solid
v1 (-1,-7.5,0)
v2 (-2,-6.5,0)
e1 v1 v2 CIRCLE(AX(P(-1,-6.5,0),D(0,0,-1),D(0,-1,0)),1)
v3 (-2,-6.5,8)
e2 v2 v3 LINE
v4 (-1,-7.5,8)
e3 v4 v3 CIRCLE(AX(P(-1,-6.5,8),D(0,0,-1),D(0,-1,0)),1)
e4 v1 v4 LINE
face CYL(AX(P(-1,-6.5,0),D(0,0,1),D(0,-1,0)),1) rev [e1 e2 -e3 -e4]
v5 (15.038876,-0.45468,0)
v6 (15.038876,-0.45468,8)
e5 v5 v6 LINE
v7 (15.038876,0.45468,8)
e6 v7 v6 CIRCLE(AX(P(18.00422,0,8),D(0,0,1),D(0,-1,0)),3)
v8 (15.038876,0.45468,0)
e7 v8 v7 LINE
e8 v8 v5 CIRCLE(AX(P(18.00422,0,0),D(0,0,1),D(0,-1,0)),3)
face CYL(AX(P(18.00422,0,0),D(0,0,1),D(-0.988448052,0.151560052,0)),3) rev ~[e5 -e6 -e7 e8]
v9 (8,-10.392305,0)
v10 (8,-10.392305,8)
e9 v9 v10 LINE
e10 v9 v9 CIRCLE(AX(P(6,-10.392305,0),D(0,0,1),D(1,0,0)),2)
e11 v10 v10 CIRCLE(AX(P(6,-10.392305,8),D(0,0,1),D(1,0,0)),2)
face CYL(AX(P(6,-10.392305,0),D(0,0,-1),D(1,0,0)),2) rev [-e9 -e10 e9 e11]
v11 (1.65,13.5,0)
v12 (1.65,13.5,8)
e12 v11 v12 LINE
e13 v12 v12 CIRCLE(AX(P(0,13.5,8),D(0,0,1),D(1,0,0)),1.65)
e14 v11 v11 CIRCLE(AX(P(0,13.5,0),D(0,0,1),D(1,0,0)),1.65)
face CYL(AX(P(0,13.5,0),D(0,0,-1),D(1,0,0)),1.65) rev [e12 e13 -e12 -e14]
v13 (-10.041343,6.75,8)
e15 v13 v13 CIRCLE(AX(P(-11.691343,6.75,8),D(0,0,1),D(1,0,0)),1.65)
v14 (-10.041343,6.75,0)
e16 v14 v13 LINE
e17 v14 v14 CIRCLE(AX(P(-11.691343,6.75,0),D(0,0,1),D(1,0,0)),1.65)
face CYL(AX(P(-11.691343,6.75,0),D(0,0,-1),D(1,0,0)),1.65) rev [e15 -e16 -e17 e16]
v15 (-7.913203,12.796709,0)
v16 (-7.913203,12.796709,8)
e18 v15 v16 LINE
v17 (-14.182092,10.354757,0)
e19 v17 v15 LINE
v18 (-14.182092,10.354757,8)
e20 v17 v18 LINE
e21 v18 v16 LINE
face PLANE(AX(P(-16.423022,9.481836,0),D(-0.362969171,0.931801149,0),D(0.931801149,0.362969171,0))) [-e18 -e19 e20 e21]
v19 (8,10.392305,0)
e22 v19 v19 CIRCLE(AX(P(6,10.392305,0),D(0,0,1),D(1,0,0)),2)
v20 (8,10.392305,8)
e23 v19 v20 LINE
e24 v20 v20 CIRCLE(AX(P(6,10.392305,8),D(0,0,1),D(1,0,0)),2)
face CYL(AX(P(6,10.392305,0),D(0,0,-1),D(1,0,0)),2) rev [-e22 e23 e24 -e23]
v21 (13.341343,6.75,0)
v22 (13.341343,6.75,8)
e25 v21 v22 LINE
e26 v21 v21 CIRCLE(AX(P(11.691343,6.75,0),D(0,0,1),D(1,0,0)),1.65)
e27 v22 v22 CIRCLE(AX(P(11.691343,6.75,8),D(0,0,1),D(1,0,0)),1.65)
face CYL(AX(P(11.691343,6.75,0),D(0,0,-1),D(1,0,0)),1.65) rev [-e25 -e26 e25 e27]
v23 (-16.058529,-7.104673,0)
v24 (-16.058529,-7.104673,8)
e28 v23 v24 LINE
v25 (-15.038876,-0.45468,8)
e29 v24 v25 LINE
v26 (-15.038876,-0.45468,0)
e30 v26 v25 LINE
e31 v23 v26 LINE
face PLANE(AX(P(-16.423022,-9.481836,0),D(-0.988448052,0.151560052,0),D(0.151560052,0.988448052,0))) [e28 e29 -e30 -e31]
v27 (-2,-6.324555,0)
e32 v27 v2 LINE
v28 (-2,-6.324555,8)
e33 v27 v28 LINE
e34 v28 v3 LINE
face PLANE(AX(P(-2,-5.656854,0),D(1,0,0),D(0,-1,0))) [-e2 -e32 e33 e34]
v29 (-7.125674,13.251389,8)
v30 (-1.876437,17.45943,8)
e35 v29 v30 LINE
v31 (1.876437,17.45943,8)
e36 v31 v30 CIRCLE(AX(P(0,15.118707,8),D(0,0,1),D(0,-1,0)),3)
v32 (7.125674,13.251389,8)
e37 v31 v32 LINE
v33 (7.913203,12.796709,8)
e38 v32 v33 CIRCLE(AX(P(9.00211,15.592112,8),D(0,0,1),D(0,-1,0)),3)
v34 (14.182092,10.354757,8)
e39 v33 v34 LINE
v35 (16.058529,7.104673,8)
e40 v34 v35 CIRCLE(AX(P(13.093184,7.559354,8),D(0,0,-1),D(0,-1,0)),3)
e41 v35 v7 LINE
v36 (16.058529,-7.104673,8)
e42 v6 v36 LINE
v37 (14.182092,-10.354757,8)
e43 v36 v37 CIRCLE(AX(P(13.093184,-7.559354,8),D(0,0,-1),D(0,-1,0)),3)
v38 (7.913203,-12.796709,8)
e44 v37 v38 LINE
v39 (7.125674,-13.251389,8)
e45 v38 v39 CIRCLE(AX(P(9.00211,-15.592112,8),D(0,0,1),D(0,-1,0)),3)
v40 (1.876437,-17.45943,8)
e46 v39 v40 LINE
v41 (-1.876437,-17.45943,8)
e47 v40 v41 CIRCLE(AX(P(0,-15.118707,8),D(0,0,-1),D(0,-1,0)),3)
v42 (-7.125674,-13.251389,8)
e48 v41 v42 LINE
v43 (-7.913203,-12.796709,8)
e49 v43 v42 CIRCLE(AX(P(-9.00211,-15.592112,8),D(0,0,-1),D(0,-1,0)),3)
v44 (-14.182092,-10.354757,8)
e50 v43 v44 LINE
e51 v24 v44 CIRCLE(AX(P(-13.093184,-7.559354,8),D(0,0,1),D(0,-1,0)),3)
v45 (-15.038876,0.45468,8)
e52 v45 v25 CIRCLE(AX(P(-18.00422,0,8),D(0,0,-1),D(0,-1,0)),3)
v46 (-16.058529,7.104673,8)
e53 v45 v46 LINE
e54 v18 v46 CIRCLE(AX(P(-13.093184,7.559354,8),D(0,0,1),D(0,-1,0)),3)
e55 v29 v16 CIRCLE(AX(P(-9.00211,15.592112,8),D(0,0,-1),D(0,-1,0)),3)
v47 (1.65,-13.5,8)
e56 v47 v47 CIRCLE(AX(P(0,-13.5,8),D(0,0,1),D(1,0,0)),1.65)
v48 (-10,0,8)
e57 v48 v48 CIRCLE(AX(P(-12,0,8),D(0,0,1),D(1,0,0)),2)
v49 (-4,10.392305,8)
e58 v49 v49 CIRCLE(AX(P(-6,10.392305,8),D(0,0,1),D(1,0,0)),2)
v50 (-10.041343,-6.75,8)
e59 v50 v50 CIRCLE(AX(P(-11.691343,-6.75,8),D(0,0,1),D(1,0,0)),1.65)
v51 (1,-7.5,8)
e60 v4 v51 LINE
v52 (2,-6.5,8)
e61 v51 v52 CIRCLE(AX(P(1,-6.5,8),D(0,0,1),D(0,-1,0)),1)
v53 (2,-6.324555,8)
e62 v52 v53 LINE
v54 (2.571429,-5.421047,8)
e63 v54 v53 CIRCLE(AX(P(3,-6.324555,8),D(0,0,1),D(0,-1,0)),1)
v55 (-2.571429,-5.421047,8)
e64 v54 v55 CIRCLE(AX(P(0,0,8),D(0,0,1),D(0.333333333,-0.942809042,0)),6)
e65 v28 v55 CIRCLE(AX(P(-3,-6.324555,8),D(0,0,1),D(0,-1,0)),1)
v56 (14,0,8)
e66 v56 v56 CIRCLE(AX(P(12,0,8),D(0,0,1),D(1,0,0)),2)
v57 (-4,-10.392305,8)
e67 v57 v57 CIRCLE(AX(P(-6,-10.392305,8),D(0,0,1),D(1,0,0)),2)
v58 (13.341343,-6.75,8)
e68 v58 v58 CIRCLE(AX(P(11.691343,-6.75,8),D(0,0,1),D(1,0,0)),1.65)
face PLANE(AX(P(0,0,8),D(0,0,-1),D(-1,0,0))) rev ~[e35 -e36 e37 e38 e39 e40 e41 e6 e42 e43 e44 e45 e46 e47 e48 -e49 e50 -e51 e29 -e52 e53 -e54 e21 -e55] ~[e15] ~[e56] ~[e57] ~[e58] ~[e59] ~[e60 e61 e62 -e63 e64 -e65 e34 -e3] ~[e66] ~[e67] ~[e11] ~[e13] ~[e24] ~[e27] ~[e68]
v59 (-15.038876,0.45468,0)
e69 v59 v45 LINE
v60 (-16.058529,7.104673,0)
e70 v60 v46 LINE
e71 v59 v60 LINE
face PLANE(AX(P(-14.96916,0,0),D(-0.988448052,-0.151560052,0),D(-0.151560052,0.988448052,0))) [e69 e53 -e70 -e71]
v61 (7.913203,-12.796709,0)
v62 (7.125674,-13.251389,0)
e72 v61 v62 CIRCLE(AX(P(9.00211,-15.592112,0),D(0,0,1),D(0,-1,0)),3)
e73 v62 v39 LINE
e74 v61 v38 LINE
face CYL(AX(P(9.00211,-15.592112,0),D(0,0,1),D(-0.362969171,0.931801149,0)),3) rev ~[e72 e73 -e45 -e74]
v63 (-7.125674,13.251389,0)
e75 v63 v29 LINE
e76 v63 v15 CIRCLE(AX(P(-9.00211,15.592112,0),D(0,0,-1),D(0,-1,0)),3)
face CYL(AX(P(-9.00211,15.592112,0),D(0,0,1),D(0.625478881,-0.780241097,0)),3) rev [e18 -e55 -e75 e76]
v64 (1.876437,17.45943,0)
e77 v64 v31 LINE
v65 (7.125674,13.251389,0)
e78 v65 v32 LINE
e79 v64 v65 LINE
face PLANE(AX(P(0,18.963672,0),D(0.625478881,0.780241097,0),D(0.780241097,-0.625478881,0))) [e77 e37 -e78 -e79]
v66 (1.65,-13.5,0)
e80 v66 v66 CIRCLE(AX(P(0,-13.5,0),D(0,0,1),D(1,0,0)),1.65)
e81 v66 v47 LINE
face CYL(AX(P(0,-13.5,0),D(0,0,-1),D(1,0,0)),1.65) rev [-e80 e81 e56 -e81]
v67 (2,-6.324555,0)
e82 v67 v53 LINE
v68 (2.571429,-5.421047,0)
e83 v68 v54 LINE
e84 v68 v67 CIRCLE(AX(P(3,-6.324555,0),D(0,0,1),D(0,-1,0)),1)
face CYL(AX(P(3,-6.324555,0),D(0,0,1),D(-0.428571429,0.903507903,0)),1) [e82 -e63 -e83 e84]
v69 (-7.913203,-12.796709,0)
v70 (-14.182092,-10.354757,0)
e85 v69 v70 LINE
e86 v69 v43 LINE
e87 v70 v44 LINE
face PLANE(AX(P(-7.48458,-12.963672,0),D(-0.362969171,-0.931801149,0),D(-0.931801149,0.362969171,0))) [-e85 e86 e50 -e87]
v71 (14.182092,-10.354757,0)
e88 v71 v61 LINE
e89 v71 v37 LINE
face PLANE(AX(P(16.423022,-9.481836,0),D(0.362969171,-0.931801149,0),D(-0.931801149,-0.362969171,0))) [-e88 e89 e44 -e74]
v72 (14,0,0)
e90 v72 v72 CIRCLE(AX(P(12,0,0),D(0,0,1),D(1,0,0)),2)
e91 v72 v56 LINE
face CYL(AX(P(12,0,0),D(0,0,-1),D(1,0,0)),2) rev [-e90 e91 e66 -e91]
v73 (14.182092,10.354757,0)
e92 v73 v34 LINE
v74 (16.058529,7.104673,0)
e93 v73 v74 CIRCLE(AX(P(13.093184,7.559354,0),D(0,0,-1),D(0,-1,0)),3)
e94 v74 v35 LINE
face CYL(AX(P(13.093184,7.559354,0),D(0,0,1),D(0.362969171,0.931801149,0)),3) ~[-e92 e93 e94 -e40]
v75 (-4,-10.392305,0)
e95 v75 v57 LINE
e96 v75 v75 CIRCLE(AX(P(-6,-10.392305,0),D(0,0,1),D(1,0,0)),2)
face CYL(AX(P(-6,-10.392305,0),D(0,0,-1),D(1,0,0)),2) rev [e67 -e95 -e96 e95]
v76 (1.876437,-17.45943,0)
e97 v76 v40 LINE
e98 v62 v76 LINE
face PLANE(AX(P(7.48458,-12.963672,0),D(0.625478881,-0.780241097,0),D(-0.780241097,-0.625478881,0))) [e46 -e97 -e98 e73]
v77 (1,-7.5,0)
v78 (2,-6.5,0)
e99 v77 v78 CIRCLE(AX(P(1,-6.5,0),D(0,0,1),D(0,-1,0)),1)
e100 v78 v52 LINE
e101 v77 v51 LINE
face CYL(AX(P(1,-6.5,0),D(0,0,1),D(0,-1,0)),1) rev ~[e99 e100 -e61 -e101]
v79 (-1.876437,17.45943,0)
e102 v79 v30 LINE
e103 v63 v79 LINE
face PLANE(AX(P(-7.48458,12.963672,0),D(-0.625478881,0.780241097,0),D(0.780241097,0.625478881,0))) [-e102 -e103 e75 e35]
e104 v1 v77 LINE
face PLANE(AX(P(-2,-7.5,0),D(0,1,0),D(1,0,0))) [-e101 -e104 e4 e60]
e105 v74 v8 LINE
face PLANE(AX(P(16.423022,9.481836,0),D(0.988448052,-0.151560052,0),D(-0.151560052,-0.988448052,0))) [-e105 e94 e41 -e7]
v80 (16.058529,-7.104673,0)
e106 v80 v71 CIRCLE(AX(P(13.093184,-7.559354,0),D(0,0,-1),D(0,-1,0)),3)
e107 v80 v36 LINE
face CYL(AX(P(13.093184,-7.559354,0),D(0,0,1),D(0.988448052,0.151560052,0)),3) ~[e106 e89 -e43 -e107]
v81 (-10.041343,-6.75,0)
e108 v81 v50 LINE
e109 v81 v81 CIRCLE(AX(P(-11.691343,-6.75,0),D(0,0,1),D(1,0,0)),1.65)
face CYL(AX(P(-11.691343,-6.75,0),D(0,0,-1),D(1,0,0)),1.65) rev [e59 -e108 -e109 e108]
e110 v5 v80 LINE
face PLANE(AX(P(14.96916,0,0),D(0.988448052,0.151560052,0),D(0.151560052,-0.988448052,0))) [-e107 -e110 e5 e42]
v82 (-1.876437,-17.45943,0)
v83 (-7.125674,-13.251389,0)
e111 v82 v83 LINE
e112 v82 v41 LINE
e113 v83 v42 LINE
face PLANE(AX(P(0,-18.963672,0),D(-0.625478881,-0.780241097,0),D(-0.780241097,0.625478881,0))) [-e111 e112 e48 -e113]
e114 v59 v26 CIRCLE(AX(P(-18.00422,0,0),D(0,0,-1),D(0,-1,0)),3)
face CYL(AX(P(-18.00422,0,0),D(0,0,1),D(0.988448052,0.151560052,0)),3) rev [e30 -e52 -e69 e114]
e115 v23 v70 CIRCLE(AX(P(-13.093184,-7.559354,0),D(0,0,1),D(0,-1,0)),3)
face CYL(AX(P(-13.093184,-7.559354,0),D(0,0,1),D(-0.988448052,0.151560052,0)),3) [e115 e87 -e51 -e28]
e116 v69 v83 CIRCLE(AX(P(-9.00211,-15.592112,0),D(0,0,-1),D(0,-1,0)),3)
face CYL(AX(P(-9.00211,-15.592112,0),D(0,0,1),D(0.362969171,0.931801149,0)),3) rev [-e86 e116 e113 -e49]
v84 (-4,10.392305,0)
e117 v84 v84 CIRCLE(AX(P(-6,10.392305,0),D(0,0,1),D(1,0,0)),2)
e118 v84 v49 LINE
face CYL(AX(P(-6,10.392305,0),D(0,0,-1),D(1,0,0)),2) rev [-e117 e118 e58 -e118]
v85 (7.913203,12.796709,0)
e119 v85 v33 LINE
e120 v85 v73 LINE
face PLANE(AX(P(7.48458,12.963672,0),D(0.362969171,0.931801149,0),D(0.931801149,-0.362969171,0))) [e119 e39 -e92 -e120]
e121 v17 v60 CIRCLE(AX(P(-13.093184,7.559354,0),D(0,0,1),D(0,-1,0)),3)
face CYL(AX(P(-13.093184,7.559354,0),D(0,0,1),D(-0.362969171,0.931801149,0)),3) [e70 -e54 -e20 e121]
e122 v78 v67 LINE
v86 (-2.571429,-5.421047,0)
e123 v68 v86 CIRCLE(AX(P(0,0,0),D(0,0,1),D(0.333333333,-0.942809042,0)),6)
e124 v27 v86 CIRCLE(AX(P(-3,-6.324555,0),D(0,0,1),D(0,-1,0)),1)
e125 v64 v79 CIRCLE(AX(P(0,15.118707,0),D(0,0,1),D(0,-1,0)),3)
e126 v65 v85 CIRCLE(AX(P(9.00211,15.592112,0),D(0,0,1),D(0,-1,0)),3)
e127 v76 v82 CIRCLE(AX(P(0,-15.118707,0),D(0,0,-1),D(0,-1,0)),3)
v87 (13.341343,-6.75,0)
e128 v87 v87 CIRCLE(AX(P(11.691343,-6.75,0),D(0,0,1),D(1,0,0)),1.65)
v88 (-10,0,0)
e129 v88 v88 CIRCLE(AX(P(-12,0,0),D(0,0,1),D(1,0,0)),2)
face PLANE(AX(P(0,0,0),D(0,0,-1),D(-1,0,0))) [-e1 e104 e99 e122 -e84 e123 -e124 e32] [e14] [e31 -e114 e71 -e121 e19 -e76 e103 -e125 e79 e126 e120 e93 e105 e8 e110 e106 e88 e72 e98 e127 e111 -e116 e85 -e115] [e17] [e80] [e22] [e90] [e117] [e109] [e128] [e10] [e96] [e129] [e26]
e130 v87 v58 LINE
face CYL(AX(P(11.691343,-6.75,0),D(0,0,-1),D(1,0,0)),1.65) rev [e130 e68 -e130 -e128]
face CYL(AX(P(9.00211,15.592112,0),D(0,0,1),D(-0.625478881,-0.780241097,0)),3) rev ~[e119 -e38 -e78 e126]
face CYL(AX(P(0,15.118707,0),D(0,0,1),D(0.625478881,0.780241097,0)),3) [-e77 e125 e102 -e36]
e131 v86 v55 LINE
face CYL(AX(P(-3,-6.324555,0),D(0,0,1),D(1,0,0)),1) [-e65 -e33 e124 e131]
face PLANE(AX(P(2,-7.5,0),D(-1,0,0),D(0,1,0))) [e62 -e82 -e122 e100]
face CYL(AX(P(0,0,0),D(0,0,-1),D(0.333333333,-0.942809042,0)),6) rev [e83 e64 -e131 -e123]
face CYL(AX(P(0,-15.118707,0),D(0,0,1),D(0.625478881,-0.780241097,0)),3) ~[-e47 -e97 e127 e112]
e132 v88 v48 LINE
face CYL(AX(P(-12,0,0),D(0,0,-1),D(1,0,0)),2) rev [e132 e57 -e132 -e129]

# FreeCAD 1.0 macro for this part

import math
import FreeCAD as App
import Part
import Sketcher

V = App.Vector


def edges_at(feature, points):
    """Names of the edges that pass closest to the given points."""
    edges = feature.Shape.Edges
    near = lambda p: min(range(len(edges)), key=lambda i: edges[i].distToShape(Part.Vertex(*p))[0])
    return sorted({f"Edge{near(p) + 1}" for p in points})


def add_polygon(sketch, points):
    """Adds a closed chain of lines whose ends are joined by coincident constraints."""
    first, n = sketch.GeometryCount, len(points)
    for a, b in zip(points, points[1:] + points[:1]):
        sketch.addGeometry(Part.LineSegment(App.Vector(*a, 0), App.Vector(*b, 0)), False)
    for i in range(n):
        sketch.addConstraint(Sketcher.Constraint("Coincident", first + i, 2, first + (i + 1) % n, 1))

doc = App.newDocument("Part")
body = doc.addObject("PartDesign::Body", "Body")

# Sketch on XY plane
sketch1 = doc.addObject("Sketcher::SketchObject", "Sketch")
body.addObject(sketch1)
sketch1.AttachmentSupport = (doc.XY_Plane, [""])
sketch1.MapMode = "FlatFace"
add_polygon(sketch1, [(7.5, 13), (0, 19), (-7.5, 13), (-16.4, 9.5), (-15, 0), (-16.4, -9.5), (-7.5, -13), (0, -19), (7.5, -13), (16.4, -9.5), (15, 0), (16.4, 9.5)])  # lines 0-11
sketch1.addGeometry(Part.Circle(V(6, -10.4, 0), V(0, 0, 1), 2), False)  # 12
sketch1.addGeometry(Part.Circle(V(11.7, -6.8, 0), V(0, 0, 1), 1.6), False)  # 13
sketch1.addGeometry(Part.Circle(V(12, 0, 0), V(0, 0, 1), 2), False)  # 14
sketch1.addGeometry(Part.LineSegment(V(2, -7.5, 0), V(-2, -7.5, 0)), False)  # 15
sketch1.addGeometry(Part.LineSegment(V(-2, -7.5, 0), V(-2, -5.7, 0)), False)  # 16
sketch1.addGeometry(Part.ArcOfCircle(Part.Circle(V(0, 0, 0), V(0, 0, 1), 6), math.radians(-71), math.radians(251)), False)  # 17
sketch1.addGeometry(Part.LineSegment(V(2, -5.7, 0), V(2, -7.5, 0)), False)  # 18
sketch1.addGeometry(Part.Circle(V(0, -13.5, 0), V(0, 0, 1), 1.6), False)  # 19
sketch1.addGeometry(Part.Circle(V(-6, -10.4, 0), V(0, 0, 1), 2), False)  # 20
sketch1.addGeometry(Part.Circle(V(-11.7, -6.8, 0), V(0, 0, 1), 1.6), False)  # 21
sketch1.addGeometry(Part.Circle(V(-12, 0, 0), V(0, 0, 1), 2), False)  # 22
sketch1.addGeometry(Part.Circle(V(11.7, 6.8, 0), V(0, 0, 1), 1.6), False)  # 23
sketch1.addGeometry(Part.Circle(V(6, 10.4, 0), V(0, 0, 1), 2), False)  # 24
sketch1.addGeometry(Part.Circle(V(-11.7, 6.8, 0), V(0, 0, 1), 1.6), False)  # 25
sketch1.addGeometry(Part.Circle(V(-6, 10.4, 0), V(0, 0, 1), 2), False)  # 26
sketch1.addGeometry(Part.Circle(V(0, 13.5, 0), V(0, 0, 1), 1.6), False)  # 27
sketch1.addConstraint(Sketcher.Constraint("Coincident", 15, 2, 16, 1))
sketch1.addConstraint(Sketcher.Constraint("Coincident", 16, 2, 17, 2))
sketch1.addConstraint(Sketcher.Constraint("Coincident", 17, 1, 18, 1))
sketch1.addConstraint(Sketcher.Constraint("Coincident", 18, 2, 15, 1))
sketch1.addConstraint(Sketcher.Constraint("Horizontal", 15))
sketch1.addConstraint(Sketcher.Constraint("Vertical", 16))
sketch1.addConstraint(Sketcher.Constraint("Vertical", 18))
sketch1.addConstraint(Sketcher.Constraint("Coincident", 17, 3, -1, 1))
sketch1.addConstraint(Sketcher.Constraint("Equal", 12, 14))
sketch1.addConstraint(Sketcher.Constraint("Equal", 13, 19))
sketch1.addConstraint(Sketcher.Constraint("Equal", 14, 20))
sketch1.addConstraint(Sketcher.Constraint("Equal", 19, 21))
sketch1.addConstraint(Sketcher.Constraint("Equal", 20, 22))
sketch1.addConstraint(Sketcher.Constraint("Equal", 21, 23))
sketch1.addConstraint(Sketcher.Constraint("Equal", 22, 24))
sketch1.addConstraint(Sketcher.Constraint("Equal", 23, 25))
sketch1.addConstraint(Sketcher.Constraint("Equal", 24, 26))
sketch1.addConstraint(Sketcher.Constraint("Equal", 25, 27))
sketch1.addConstraint(Sketcher.Constraint("Symmetric", 14, 3, 22, 3, -1, 1))
sketch1.addConstraint(Sketcher.Constraint("Symmetric", 21, 3, 23, 3, -1, 1))
sketch1.addConstraint(Sketcher.Constraint("Symmetric", 20, 3, 24, 3, -1, 1))
sketch1.addConstraint(Sketcher.Constraint("Symmetric", 13, 3, 25, 3, -1, 1))
sketch1.addConstraint(Sketcher.Constraint("Symmetric", 12, 3, 26, 3, -1, 1))
sketch1.addConstraint(Sketcher.Constraint("Symmetric", 19, 3, 27, 3, -1, 1))
sketch1.addConstraint(Sketcher.Constraint("Symmetric", 0, 2, 6, 2, -1, 1))
sketch1.addConstraint(Sketcher.Constraint("Symmetric", 1, 2, 7, 2, -1, 1))
sketch1.addConstraint(Sketcher.Constraint("Symmetric", 2, 2, 8, 2, -1, 1))
sketch1.addConstraint(Sketcher.Constraint("Symmetric", 3, 2, 9, 2, -1, 1))
sketch1.addConstraint(Sketcher.Constraint("Symmetric", 4, 2, 10, 2, -1, 1))
sketch1.addConstraint(Sketcher.Constraint("Symmetric", 5, 2, 11, 2, -1, 1))
sketch1.addConstraint(Sketcher.Constraint("Symmetric", 12, 3, 20, 3, -2))
sketch1.addConstraint(Sketcher.Constraint("Symmetric", 13, 3, 21, 3, -2))
sketch1.addConstraint(Sketcher.Constraint("Symmetric", 5, 2, 7, 2, -2))
sketch1.addConstraint(Sketcher.Constraint("Symmetric", 4, 2, 8, 2, -2))
sketch1.addConstraint(Sketcher.Constraint("PointOnObject", 14, 3, -1))
sketch1.addConstraint(Sketcher.Constraint("PointOnObject", 19, 3, -2))
sketch1.addConstraint(Sketcher.Constraint("PointOnObject", 0, 2, -2))
sketch1.addConstraint(Sketcher.Constraint("PointOnObject", 3, 2, -1))
sketch1.addConstraint(Sketcher.Constraint("Horizontal", 16, 2, 17, 1))
sketch1.addConstraint(Sketcher.Constraint("Equal", 1, 2))
sketch1.addConstraint(Sketcher.Constraint("Equal", 2, 3))
sketch1.addConstraint(Sketcher.Constraint("Diameter", 12, 4.0))
sketch1.addConstraint(Sketcher.Constraint("Radius", 17, 6.0))
sketch1.addConstraint(Sketcher.Constraint("Diameter", 13, 3.3))
sketch1.addConstraint(Sketcher.Constraint("DistanceX", 15, 2, 15, 1, 4.0))
sketch1.addConstraint(Sketcher.Constraint("DistanceX", -1, 1, 12, 3, 6.0))
sketch1.addConstraint(Sketcher.Constraint("DistanceX", -1, 1, 14, 3, 12.0))
sketch1.addConstraint(Sketcher.Constraint("DistanceY", 1, 2, 0, 2, 6.0))
sketch1.addConstraint(Sketcher.Constraint("DistanceY", 19, 3, 15, 2, 6.0))
sketch1.addConstraint(Sketcher.Constraint("DistanceY", 19, 3, -1, 1, 13.5))
sketch1.addConstraint(Sketcher.Constraint("DistanceY", 13, 3, 23, 3, 13.5))
sketch1.addConstraint(Sketcher.Constraint("Distance", 0, 9.59265))
sketch1.addConstraint(Sketcher.Constraint("DistanceX", 3, 2, -1, 1, 14.96916))
sketch1.addConstraint(Sketcher.Constraint("DistanceY", 12, 3, 24, 3, 20.78461))
sketch1.addConstraint(Sketcher.Constraint("DistanceX", 2, 2, 25, 3, 4.731679))
sketch1.addConstraint(Sketcher.Constraint("DistanceY", 2, 2, 26, 3, 0.910469))
pad1 = doc.addObject("PartDesign::Pad", "Pad")
body.addObject(pad1)
pad1.Profile = sketch1
pad1.Length = 8
doc.recompute()

fillet = doc.addObject("PartDesign::Fillet", "Fillet")
body.addObject(fillet)
fillet.Base = (pad1, edges_at(pad1, [
    (0, 18.964, 4),
    (7.485, 12.964, 4),
    (16.423, 9.482, 4),
    (14.969, 0, 4),
    (16.423, -9.482, 4),
    (7.485, -12.964, 4),
    (0, -18.964, 4),
    (-7.485, -12.964, 4),
    (-16.423, -9.482, 4),
    (-14.969, 0, 4),
    (-16.423, 9.482, 4),
    (-7.485, 12.964, 4),
]))
fillet.Radius = 3
doc.recompute()

fillet2 = doc.addObject("PartDesign::Fillet", "Fillet001")
body.addObject(fillet2)
fillet2.Base = (fillet, edges_at(fillet, [
    (-2, -7.5, 4),
    (2, -7.5, 4),
    (2, -5.657, 4),
    (-2, -5.657, 4),
]))
fillet2.Radius = 1

doc.recompute()
